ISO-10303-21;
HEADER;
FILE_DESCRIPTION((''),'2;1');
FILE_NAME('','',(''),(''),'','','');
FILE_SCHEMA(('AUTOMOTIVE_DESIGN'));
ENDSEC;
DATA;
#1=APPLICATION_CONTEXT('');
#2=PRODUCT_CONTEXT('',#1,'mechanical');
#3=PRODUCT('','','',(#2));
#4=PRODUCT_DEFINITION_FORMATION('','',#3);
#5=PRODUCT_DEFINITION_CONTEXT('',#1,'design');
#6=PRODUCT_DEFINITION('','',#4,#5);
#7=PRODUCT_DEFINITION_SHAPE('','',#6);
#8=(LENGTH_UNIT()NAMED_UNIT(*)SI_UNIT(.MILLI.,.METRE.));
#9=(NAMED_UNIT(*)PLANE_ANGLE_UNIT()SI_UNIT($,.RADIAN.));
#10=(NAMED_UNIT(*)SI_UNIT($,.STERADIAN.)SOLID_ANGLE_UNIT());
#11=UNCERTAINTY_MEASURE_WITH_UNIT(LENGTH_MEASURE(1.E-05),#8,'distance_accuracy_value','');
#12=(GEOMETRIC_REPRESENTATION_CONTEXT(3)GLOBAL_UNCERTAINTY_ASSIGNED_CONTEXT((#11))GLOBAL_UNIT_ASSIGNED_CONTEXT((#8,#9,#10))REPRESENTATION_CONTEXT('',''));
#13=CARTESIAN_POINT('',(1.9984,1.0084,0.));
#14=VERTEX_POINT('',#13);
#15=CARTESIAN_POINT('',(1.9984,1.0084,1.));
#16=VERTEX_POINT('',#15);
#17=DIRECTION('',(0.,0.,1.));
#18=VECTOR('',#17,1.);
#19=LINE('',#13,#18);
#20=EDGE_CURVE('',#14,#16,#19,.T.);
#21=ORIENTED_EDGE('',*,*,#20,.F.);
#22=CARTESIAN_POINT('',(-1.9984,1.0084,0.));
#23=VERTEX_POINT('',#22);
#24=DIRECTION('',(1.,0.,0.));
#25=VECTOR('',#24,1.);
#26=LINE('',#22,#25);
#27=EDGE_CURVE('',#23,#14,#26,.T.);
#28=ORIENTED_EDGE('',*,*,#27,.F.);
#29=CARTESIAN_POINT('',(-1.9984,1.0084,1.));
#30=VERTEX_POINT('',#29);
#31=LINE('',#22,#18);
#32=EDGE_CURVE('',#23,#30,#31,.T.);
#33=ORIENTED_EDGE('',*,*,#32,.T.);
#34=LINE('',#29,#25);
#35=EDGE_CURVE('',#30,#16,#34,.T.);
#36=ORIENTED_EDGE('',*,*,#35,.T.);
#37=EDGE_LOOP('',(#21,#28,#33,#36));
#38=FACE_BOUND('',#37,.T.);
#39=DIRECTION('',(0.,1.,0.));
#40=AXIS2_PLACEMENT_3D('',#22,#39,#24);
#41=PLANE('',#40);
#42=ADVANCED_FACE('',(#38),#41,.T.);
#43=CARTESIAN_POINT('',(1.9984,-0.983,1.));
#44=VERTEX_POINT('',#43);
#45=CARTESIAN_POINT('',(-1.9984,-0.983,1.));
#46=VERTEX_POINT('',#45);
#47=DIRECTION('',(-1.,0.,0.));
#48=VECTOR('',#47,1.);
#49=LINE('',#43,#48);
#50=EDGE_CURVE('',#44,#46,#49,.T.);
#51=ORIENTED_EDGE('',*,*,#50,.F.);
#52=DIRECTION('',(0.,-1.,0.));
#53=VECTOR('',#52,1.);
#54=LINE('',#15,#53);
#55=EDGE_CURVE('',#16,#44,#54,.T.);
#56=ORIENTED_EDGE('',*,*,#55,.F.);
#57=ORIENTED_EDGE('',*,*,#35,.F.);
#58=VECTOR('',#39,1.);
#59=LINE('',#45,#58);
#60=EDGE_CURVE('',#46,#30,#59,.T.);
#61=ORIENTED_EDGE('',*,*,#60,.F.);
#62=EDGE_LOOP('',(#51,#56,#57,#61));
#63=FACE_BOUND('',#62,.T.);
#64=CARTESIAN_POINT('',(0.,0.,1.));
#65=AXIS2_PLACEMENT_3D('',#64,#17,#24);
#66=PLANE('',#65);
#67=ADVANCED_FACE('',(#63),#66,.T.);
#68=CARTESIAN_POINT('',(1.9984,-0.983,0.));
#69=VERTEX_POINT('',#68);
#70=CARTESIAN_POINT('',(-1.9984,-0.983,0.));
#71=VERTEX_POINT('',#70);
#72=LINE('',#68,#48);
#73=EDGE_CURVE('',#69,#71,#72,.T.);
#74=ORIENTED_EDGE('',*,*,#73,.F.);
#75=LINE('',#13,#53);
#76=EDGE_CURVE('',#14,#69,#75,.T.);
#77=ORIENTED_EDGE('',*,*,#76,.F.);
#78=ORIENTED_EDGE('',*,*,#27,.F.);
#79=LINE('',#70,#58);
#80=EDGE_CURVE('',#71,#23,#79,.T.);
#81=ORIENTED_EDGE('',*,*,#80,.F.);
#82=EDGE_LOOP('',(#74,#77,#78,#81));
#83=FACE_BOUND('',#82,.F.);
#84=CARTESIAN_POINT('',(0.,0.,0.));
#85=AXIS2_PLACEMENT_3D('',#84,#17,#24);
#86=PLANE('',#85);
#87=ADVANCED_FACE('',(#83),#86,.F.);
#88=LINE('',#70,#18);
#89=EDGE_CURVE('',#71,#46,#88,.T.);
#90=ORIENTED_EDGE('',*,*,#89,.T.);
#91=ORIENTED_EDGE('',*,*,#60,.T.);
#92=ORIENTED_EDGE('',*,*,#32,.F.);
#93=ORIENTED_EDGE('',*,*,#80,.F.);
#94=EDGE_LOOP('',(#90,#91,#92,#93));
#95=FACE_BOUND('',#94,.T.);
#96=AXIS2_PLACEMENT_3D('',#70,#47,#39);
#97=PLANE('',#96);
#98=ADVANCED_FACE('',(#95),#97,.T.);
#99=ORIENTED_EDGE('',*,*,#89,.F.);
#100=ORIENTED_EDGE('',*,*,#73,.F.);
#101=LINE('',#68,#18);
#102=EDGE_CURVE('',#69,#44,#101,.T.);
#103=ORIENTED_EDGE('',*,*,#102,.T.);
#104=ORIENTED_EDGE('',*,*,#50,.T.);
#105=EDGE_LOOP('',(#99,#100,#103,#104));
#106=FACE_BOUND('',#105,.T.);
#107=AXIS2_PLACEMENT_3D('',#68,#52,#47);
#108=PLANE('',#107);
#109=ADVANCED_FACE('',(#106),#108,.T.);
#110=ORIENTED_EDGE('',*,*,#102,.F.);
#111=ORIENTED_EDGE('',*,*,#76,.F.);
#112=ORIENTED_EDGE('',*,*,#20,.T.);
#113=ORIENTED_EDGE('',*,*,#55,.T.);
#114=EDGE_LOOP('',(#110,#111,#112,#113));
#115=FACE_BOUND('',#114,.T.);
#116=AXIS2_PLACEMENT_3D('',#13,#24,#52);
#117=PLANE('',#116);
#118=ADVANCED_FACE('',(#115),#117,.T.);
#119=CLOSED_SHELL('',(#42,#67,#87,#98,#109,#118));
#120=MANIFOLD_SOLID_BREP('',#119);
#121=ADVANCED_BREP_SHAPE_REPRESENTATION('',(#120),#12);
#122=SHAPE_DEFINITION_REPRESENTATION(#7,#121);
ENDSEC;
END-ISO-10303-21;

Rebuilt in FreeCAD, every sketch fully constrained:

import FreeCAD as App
import Part
import Sketcher

V = App.Vector

doc = App.newDocument("Part")
params = doc.addObject("Spreadsheet::Sheet", "Params")
for row, (alias, value) in enumerate([
    ("pad1_length", "1 mm"),
], start=1):
    params.set(f"A{row}", alias)
    params.set(f"B{row}", "=" + value)
    params.setAlias(f"B{row}", alias)

body = doc.addObject("PartDesign::Body", "Body")

# Sketch on XY plane
sketch1 = body.newObject("Sketcher::SketchObject", "Sketch")
sketch1.AttachmentSupport = (doc.getObject("XY_Plane"), [""])
sketch1.MapMode = "FlatFace"
sketch1.addGeometry(Part.LineSegment(V(2, 1, 0), V(-2, 1, 0)), False)
sketch1.addGeometry(Part.LineSegment(V(-2, 1, 0), V(-2, -1, 0)), False)
sketch1.addGeometry(Part.LineSegment(V(-2, -1, 0), V(2, -1, 0)), False)
sketch1.addGeometry(Part.LineSegment(V(2, -1, 0), V(2, 1, 0)), False)
sketch1.addConstraint(Sketcher.Constraint("Coincident", 0, 2, 1, 1))
sketch1.addConstraint(Sketcher.Constraint("Coincident", 1, 2, 2, 1))
sketch1.addConstraint(Sketcher.Constraint("Coincident", 2, 2, 3, 1))
sketch1.addConstraint(Sketcher.Constraint("Coincident", 3, 2, 0, 1))
sketch1.addConstraint(Sketcher.Constraint("Horizontal", 0))
sketch1.addConstraint(Sketcher.Constraint("Vertical", 1))
sketch1.addConstraint(Sketcher.Constraint("Horizontal", 2))
sketch1.addConstraint(Sketcher.Constraint("Vertical", 3))
sketch1.addConstraint(Sketcher.Constraint("DistanceX", 0, 2, 0, 1, 3.9968))
sketch1.addConstraint(Sketcher.Constraint("DistanceY", 1, 2, 1, 1, 1.9914))
sketch1.addConstraint(Sketcher.Constraint("DistanceY", 1, 2, -1, 1, 0.983))
sketch1.addConstraint(Sketcher.Constraint("DistanceX", 0, 2, -1, 1, 1.9984))
pad1 = body.newObject("PartDesign::Pad", "Pad")
pad1.Profile = sketch1
pad1.setExpression("Length", "Params.pad1_length")

doc.recompute()
